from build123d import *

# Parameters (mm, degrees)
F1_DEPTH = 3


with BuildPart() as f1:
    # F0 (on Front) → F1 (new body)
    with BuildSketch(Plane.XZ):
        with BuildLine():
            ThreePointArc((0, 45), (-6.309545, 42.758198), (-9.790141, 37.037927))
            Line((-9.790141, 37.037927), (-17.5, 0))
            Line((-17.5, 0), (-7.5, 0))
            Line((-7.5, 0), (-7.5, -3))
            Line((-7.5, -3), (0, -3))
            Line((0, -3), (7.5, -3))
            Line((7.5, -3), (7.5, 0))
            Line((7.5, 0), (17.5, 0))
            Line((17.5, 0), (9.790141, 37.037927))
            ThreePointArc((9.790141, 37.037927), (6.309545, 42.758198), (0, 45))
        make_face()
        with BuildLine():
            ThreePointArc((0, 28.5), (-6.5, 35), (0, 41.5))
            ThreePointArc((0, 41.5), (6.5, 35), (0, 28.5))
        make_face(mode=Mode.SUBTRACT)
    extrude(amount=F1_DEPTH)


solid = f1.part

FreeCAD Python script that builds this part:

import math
import FreeCAD as App
import Part
import Sketcher

V = App.Vector

doc = App.newDocument("Part")
body = doc.addObject("PartDesign::Body", "Body")

# Sketch on XZ plane
sketch1 = doc.addObject("Sketcher::SketchObject", "Sketch")
body.addObject(sketch1)
sketch1.AttachmentSupport = (doc.XZ_Plane, [""])
sketch1.MapMode = "FlatFace"
sketch1.addGeometry(Part.ArcOfCircle(Part.Circle(V(0, 35, 0), V(0, 0, 1), 10), math.radians(90), math.radians(168)), False)
sketch1.addGeometry(Part.LineSegment(V(-9.8, 37, 0), V(-17.5, 0, 0)), False)
sketch1.addGeometry(Part.LineSegment(V(-17.5, 0, 0), V(-7.5, 0, 0)), False)
sketch1.addGeometry(Part.LineSegment(V(-7.5, 0, 0), V(-7.5, -3, 0)), False)
sketch1.addGeometry(Part.LineSegment(V(-7.5, -3, 0), V(7.5, -3, 0)), False)
sketch1.addGeometry(Part.LineSegment(V(7.5, -3, 0), V(7.5, 0, 0)), False)
sketch1.addGeometry(Part.LineSegment(V(7.5, 0, 0), V(17.5, 0, 0)), False)
sketch1.addGeometry(Part.LineSegment(V(17.5, 0, 0), V(9.8, 37, 0)), False)
sketch1.addGeometry(Part.ArcOfCircle(Part.Circle(V(0, 35, 0), V(0, 0, 1), 10), math.radians(12), math.radians(90)), False)
sketch1.addGeometry(Part.Circle(V(0, 35, 0), V(0, 0, 1), 6.5), False)
sketch1.addConstraint(Sketcher.Constraint("Tangent", 0, 2, 1, 1))
sketch1.addConstraint(Sketcher.Constraint("Coincident", 1, 2, 2, 1))
sketch1.addConstraint(Sketcher.Constraint("Coincident", 2, 2, 3, 1))
sketch1.addConstraint(Sketcher.Constraint("Coincident", 3, 2, 4, 1))
sketch1.addConstraint(Sketcher.Constraint("Coincident", 4, 2, 5, 1))
sketch1.addConstraint(Sketcher.Constraint("Coincident", 5, 2, 6, 1))
sketch1.addConstraint(Sketcher.Constraint("Coincident", 6, 2, 7, 1))
sketch1.addConstraint(Sketcher.Constraint("Tangent", 7, 2, 8, 1))
sketch1.addConstraint(Sketcher.Constraint("Tangent", 8, 2, 0, 1))
sketch1.addConstraint(Sketcher.Constraint("Horizontal", 2))
sketch1.addConstraint(Sketcher.Constraint("Vertical", 3))
sketch1.addConstraint(Sketcher.Constraint("Horizontal", 4))
sketch1.addConstraint(Sketcher.Constraint("Vertical", 5))
sketch1.addConstraint(Sketcher.Constraint("Horizontal", 6))
sketch1.addConstraint(Sketcher.Constraint("Coincident", 9, 3, 0, 3))
sketch1.addConstraint(Sketcher.Constraint("Equal", 0, 8))
sketch1.addConstraint(Sketcher.Constraint("Symmetric", 2, 2, 5, 2, -1, 1))
sketch1.addConstraint(Sketcher.Constraint("Symmetric", 1, 2, 6, 2, -2))
sketch1.addConstraint(Sketcher.Constraint("PointOnObject", 0, 3, -2))
sketch1.addConstraint(Sketcher.Constraint("PointOnObject", 8, 2, -2))
sketch1.addConstraint(Sketcher.Constraint("Diameter", 9, 13.0))
sketch1.addConstraint(Sketcher.Constraint("Radius", 0, 10.000002))
sketch1.addConstraint(Sketcher.Constraint("DistanceX", 2, 1, 2, 2, 10.0))
sketch1.addConstraint(Sketcher.Constraint("DistanceX", 4, 1, 4, 2, 15.0))
sketch1.addConstraint(Sketcher.Constraint("DistanceY", 3, 2, 3, 1, 3.0))
sketch1.addConstraint(Sketcher.Constraint("DistanceY", -1, 1, 0, 3, 34.999998))
pad1 = doc.addObject("PartDesign::Pad", "Pad")
body.addObject(pad1)
pad1.Profile = sketch1
pad1.Length = 3

doc.recompute()
